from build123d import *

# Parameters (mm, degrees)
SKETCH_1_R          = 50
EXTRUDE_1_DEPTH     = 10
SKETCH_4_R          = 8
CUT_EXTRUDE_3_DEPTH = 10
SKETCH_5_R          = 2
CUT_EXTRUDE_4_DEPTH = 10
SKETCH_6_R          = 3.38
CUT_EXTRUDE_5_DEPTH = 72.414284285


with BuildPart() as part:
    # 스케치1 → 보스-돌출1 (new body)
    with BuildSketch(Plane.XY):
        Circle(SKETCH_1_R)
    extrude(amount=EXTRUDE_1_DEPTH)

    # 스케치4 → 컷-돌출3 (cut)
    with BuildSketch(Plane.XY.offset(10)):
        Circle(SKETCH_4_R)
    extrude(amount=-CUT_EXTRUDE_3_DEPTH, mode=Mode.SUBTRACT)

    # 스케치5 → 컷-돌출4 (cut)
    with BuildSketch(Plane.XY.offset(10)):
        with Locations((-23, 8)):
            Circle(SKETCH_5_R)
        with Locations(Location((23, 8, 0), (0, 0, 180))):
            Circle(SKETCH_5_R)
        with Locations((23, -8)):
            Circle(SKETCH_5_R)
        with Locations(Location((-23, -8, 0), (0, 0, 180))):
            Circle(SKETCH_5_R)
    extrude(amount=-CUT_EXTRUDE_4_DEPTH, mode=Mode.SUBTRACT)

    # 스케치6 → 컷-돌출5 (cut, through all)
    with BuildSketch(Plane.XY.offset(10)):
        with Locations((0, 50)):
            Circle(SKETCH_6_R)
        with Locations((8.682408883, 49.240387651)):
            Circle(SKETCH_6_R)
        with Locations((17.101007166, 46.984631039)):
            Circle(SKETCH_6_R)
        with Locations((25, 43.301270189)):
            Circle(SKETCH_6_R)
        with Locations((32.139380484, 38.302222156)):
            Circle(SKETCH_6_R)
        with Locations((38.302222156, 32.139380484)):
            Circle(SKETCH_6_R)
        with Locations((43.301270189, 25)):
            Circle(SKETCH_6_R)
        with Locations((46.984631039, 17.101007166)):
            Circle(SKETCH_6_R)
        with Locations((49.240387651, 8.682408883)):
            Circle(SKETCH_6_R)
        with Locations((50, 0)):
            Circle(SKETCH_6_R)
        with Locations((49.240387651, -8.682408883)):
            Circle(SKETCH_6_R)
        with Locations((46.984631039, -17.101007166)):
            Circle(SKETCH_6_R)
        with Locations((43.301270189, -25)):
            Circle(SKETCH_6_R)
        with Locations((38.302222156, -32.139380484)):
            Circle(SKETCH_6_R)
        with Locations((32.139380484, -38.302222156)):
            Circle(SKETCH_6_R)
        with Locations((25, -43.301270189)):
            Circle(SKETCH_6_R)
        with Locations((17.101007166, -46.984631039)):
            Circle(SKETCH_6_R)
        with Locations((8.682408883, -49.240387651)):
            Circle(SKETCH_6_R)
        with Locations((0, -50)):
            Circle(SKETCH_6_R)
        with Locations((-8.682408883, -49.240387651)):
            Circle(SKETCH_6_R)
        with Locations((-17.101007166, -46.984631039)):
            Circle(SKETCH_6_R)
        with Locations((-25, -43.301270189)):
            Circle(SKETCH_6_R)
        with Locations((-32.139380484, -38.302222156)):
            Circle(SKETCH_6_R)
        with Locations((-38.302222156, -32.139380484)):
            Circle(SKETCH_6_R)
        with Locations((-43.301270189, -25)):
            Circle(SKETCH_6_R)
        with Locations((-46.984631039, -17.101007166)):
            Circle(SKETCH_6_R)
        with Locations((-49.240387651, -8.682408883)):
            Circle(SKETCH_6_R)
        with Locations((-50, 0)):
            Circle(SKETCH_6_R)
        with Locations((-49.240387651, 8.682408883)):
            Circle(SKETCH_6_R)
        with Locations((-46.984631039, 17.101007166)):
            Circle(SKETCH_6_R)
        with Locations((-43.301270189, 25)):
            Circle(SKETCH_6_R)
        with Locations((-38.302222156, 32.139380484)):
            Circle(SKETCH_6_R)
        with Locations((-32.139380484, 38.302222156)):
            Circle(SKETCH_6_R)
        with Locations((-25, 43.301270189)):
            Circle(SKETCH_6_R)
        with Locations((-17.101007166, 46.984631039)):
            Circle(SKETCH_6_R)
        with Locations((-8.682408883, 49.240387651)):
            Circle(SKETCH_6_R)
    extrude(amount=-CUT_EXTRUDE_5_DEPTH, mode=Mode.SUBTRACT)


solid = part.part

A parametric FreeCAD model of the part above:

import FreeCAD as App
import Part
import Sketcher

V = App.Vector

doc = App.newDocument("Part")
body = doc.addObject("PartDesign::Body", "Body")

# Sketch on XY plane
sketch1 = body.newObject("Sketcher::SketchObject", "Sketch")
sketch1.AttachmentSupport = (doc.getObject("XY_Plane"), [""])
sketch1.MapMode = "FlatFace"
sketch1.addGeometry(Part.Circle(V(0, 0, 0), V(0, 0, 1), 50), False)
sketch1.addConstraint(Sketcher.Constraint("Coincident", 0, 3, -1, 1))
sketch1.addConstraint(Sketcher.Constraint("Diameter", 0, 100.0))
pad1 = body.newObject("PartDesign::Pad", "Pad")
pad1.Profile = sketch1
pad1.Length = 10

# Sketch on XY plane
sketch2 = body.newObject("Sketcher::SketchObject", "Sketch001")
sketch2.AttachmentSupport = (doc.getObject("XY_Plane"), [""])
sketch2.MapMode = "FlatFace"
sketch2.AttachmentOffset = App.Placement(V(0, 0, 10), App.Rotation())
sketch2.addGeometry(Part.Circle(V(0, 0, 0), V(0, 0, 1), 8), False)
sketch2.addConstraint(Sketcher.Constraint("Coincident", 0, 3, -1, 1))
sketch2.addConstraint(Sketcher.Constraint("Diameter", 0, 16.0))
pocket1 = body.newObject("PartDesign::Pocket", "Pocket")
pocket1.Profile = sketch2
pocket1.Length = 10

# Sketch on XY plane
sketch3 = body.newObject("Sketcher::SketchObject", "Sketch002")
sketch3.AttachmentSupport = (doc.getObject("XY_Plane"), [""])
sketch3.MapMode = "FlatFace"
sketch3.AttachmentOffset = App.Placement(V(0, 0, 10), App.Rotation())
sketch3.addGeometry(Part.Circle(V(-23, 8, 0), V(0, 0, 1), 2), False)
sketch3.addGeometry(Part.Circle(V(23, 8, 0), V(0, 0, 1), 2), False)
sketch3.addGeometry(Part.Circle(V(23, -8, 0), V(0, 0, 1), 2), False)
sketch3.addGeometry(Part.Circle(V(-23, -8, 0), V(0, 0, 1), 2), False)
sketch3.addConstraint(Sketcher.Constraint("Equal", 0, 1))
sketch3.addConstraint(Sketcher.Constraint("Equal", 1, 2))
sketch3.addConstraint(Sketcher.Constraint("Equal", 2, 3))
sketch3.addConstraint(Sketcher.Constraint("Symmetric", 0, 3, 2, 3, -1, 1))
sketch3.addConstraint(Sketcher.Constraint("Symmetric", 1, 3, 3, 3, -1, 1))
sketch3.addConstraint(Sketcher.Constraint("Symmetric", 0, 3, 1, 3, -2))
sketch3.addConstraint(Sketcher.Constraint("Diameter", 0, 4.0))
sketch3.addConstraint(Sketcher.Constraint("DistanceX", 0, 3, -1, 1, 23.0))
sketch3.addConstraint(Sketcher.Constraint("DistanceY", -1, 1, 0, 3, 8.0))
pocket2 = body.newObject("PartDesign::Pocket", "Pocket001")
pocket2.Profile = sketch3
pocket2.Length = 10

# Sketch on XY plane
sketch4 = body.newObject("Sketcher::SketchObject", "Sketch003")
sketch4.AttachmentSupport = (doc.getObject("XY_Plane"), [""])
sketch4.MapMode = "FlatFace"
sketch4.AttachmentOffset = App.Placement(V(0, 0, 10), App.Rotation())
sketch4.addGeometry(Part.Circle(V(0, 50, 0), V(0, 0, 1), 3.4), False)
sketch4.addGeometry(Part.Circle(V(8.7, 49.2, 0), V(0, 0, 1), 3.4), False)
sketch4.addGeometry(Part.Circle(V(17.1, 47, 0), V(0, 0, 1), 3.4), False)
sketch4.addGeometry(Part.Circle(V(25, 43.3, 0), V(0, 0, 1), 3.4), False)
sketch4.addGeometry(Part.Circle(V(32.1, 38.3, 0), V(0, 0, 1), 3.4), False)
sketch4.addGeometry(Part.Circle(V(38.3, 32.1, 0), V(0, 0, 1), 3.4), False)
sketch4.addGeometry(Part.Circle(V(43.3, 25, 0), V(0, 0, 1), 3.4), False)
sketch4.addGeometry(Part.Circle(V(47, 17.1, 0), V(0, 0, 1), 3.4), False)
sketch4.addGeometry(Part.Circle(V(49.2, 8.7, 0), V(0, 0, 1), 3.4), False)
sketch4.addGeometry(Part.Circle(V(50, 0, 0), V(0, 0, 1), 3.4), False)
sketch4.addGeometry(Part.Circle(V(49.2, -8.7, 0), V(0, 0, 1), 3.4), False)
sketch4.addGeometry(Part.Circle(V(47, -17.1, 0), V(0, 0, 1), 3.4), False)
sketch4.addGeometry(Part.Circle(V(43.3, -25, 0), V(0, 0, 1), 3.4), False)
sketch4.addGeometry(Part.Circle(V(38.3, -32.1, 0), V(0, 0, 1), 3.4), False)
sketch4.addGeometry(Part.Circle(V(32.1, -38.3, 0), V(0, 0, 1), 3.4), False)
sketch4.addGeometry(Part.Circle(V(25, -43.3, 0), V(0, 0, 1), 3.4), False)
sketch4.addGeometry(Part.Circle(V(17.1, -47, 0), V(0, 0, 1), 3.4), False)
sketch4.addGeometry(Part.Circle(V(8.7, -49.2, 0), V(0, 0, 1), 3.4), False)
sketch4.addGeometry(Part.Circle(V(0, -50, 0), V(0, 0, 1), 3.4), False)
sketch4.addGeometry(Part.Circle(V(-8.7, -49.2, 0), V(0, 0, 1), 3.4), False)
sketch4.addGeometry(Part.Circle(V(-17.1, -47, 0), V(0, 0, 1), 3.4), False)
sketch4.addGeometry(Part.Circle(V(-25, -43.3, 0), V(0, 0, 1), 3.4), False)
sketch4.addGeometry(Part.Circle(V(-32.1, -38.3, 0), V(0, 0, 1), 3.4), False)
sketch4.addGeometry(Part.Circle(V(-38.3, -32.1, 0), V(0, 0, 1), 3.4), False)
sketch4.addGeometry(Part.Circle(V(-43.3, -25, 0), V(0, 0, 1), 3.4), False)
sketch4.addGeometry(Part.Circle(V(-47, -17.1, 0), V(0, 0, 1), 3.4), False)
sketch4.addGeometry(Part.Circle(V(-49.2, -8.7, 0), V(0, 0, 1), 3.4), False)
sketch4.addGeometry(Part.Circle(V(-50, 0, 0), V(0, 0, 1), 3.4), False)
sketch4.addGeometry(Part.Circle(V(-49.2, 8.7, 0), V(0, 0, 1), 3.4), False)
sketch4.addGeometry(Part.Circle(V(-47, 17.1, 0), V(0, 0, 1), 3.4), False)
sketch4.addGeometry(Part.Circle(V(-43.3, 25, 0), V(0, 0, 1), 3.4), False)
sketch4.addGeometry(Part.Circle(V(-38.3, 32.1, 0), V(0, 0, 1), 3.4), False)
sketch4.addGeometry(Part.Circle(V(-32.1, 38.3, 0), V(0, 0, 1), 3.4), False)
sketch4.addGeometry(Part.Circle(V(-25, 43.3, 0), V(0, 0, 1), 3.4), False)
sketch4.addGeometry(Part.Circle(V(-17.1, 47, 0), V(0, 0, 1), 3.4), False)
sketch4.addGeometry(Part.Circle(V(-8.7, 49.2, 0), V(0, 0, 1), 3.4), False)
sketch4.addConstraint(Sketcher.Constraint("Equal", 0, 1))
sketch4.addConstraint(Sketcher.Constraint("Equal", 1, 2))
sketch4.addConstraint(Sketcher.Constraint("Equal", 2, 3))
sketch4.addConstraint(Sketcher.Constraint("Equal", 3, 4))
sketch4.addConstraint(Sketcher.Constraint("Equal", 4, 5))
sketch4.addConstraint(Sketcher.Constraint("Equal", 5, 6))
sketch4.addConstraint(Sketcher.Constraint("Equal", 6, 7))
sketch4.addConstraint(Sketcher.Constraint("Equal", 7, 8))
sketch4.addConstraint(Sketcher.Constraint("Equal", 8, 9))
sketch4.addConstraint(Sketcher.Constraint("Equal", 9, 10))
sketch4.addConstraint(Sketcher.Constraint("Equal", 10, 11))
sketch4.addConstraint(Sketcher.Constraint("Equal", 11, 12))
sketch4.addConstraint(Sketcher.Constraint("Equal", 12, 13))
sketch4.addConstraint(Sketcher.Constraint("Equal", 13, 14))
sketch4.addConstraint(Sketcher.Constraint("Equal", 14, 15))
sketch4.addConstraint(Sketcher.Constraint("Equal", 15, 16))
sketch4.addConstraint(Sketcher.Constraint("Equal", 16, 17))
sketch4.addConstraint(Sketcher.Constraint("Equal", 17, 18))
sketch4.addConstraint(Sketcher.Constraint("Equal", 18, 19))
sketch4.addConstraint(Sketcher.Constraint("Equal", 19, 20))
sketch4.addConstraint(Sketcher.Constraint("Equal", 20, 21))
sketch4.addConstraint(Sketcher.Constraint("Equal", 21, 22))
sketch4.addConstraint(Sketcher.Constraint("Equal", 22, 23))
sketch4.addConstraint(Sketcher.Constraint("Equal", 23, 24))
sketch4.addConstraint(Sketcher.Constraint("Equal", 24, 25))
sketch4.addConstraint(Sketcher.Constraint("Equal", 25, 26))
sketch4.addConstraint(Sketcher.Constraint("Equal", 26, 27))
sketch4.addConstraint(Sketcher.Constraint("Equal", 27, 28))
sketch4.addConstraint(Sketcher.Constraint("Equal", 28, 29))
sketch4.addConstraint(Sketcher.Constraint("Equal", 29, 30))
sketch4.addConstraint(Sketcher.Constraint("Equal", 30, 31))
sketch4.addConstraint(Sketcher.Constraint("Equal", 31, 32))
sketch4.addConstraint(Sketcher.Constraint("Equal", 32, 33))
sketch4.addConstraint(Sketcher.Constraint("Equal", 33, 34))
sketch4.addConstraint(Sketcher.Constraint("Equal", 34, 35))
sketch4.addConstraint(Sketcher.Constraint("Symmetric", 0, 3, 18, 3, -1, 1))
sketch4.addConstraint(Sketcher.Constraint("Symmetric", 1, 3, 19, 3, -1, 1))
sketch4.addConstraint(Sketcher.Constraint("Symmetric", 2, 3, 20, 3, -1, 1))
sketch4.addConstraint(Sketcher.Constraint("Symmetric", 3, 3, 21, 3, -1, 1))
sketch4.addConstraint(Sketcher.Constraint("Symmetric", 4, 3, 22, 3, -1, 1))
sketch4.addConstraint(Sketcher.Constraint("Symmetric", 5, 3, 23, 3, -1, 1))
sketch4.addConstraint(Sketcher.Constraint("Symmetric", 6, 3, 24, 3, -1, 1))
sketch4.addConstraint(Sketcher.Constraint("Symmetric", 7, 3, 25, 3, -1, 1))
sketch4.addConstraint(Sketcher.Constraint("Symmetric", 8, 3, 26, 3, -1, 1))
sketch4.addConstraint(Sketcher.Constraint("Symmetric", 9, 3, 27, 3, -1, 1))
sketch4.addConstraint(Sketcher.Constraint("Symmetric", 10, 3, 28, 3, -1, 1))
sketch4.addConstraint(Sketcher.Constraint("Symmetric", 11, 3, 29, 3, -1, 1))
sketch4.addConstraint(Sketcher.Constraint("Symmetric", 12, 3, 30, 3, -1, 1))
sketch4.addConstraint(Sketcher.Constraint("Symmetric", 13, 3, 31, 3, -1, 1))
sketch4.addConstraint(Sketcher.Constraint("Symmetric", 14, 3, 32, 3, -1, 1))
sketch4.addConstraint(Sketcher.Constraint("Symmetric", 15, 3, 33, 3, -1, 1))
sketch4.addConstraint(Sketcher.Constraint("Symmetric", 16, 3, 34, 3, -1, 1))
sketch4.addConstraint(Sketcher.Constraint("Symmetric", 17, 3, 35, 3, -1, 1))
sketch4.addConstraint(Sketcher.Constraint("Symmetric", 17, 3, 19, 3, -2))
sketch4.addConstraint(Sketcher.Constraint("Symmetric", 16, 3, 20, 3, -2))
sketch4.addConstraint(Sketcher.Constraint("Symmetric", 15, 3, 21, 3, -2))
sketch4.addConstraint(Sketcher.Constraint("Symmetric", 14, 3, 22, 3, -2))
sketch4.addConstraint(Sketcher.Constraint("Symmetric", 13, 3, 23, 3, -2))
sketch4.addConstraint(Sketcher.Constraint("Symmetric", 12, 3, 24, 3, -2))
sketch4.addConstraint(Sketcher.Constraint("Symmetric", 11, 3, 25, 3, -2))
sketch4.addConstraint(Sketcher.Constraint("Symmetric", 10, 3, 26, 3, -2))
sketch4.addConstraint(Sketcher.Constraint("PointOnObject", 0, 3, -2))
sketch4.addConstraint(Sketcher.Constraint("PointOnObject", 9, 3, -1))
sketch4.addConstraint(Sketcher.Constraint("Diameter", 0, 6.76))
sketch4.addConstraint(Sketcher.Constraint("DistanceY", -1, 1, 0, 3, 50.0))
sketch4.addConstraint(Sketcher.Constraint("DistanceX", -1, 1, 3, 3, 25.0))
sketch4.addConstraint(Sketcher.Constraint("DistanceY", -1, 1, 6, 3, 25.0))
sketch4.addConstraint(Sketcher.Constraint("DistanceX", -1, 1, 9, 3, 50.0))
sketch4.addConstraint(Sketcher.Constraint("DistanceX", 1, 3, 2, 3, 8.418598))
sketch4.addConstraint(Sketcher.Constraint("DistanceY", 8, 3, 7, 3, 8.418598))
sketch4.addConstraint(Sketcher.Constraint("DistanceX", -1, 1, 1, 3, 8.682409))
sketch4.addConstraint(Sketcher.Constraint("DistanceY", -1, 1, 2, 3, 46.984631))
sketch4.addConstraint(Sketcher.Constraint("DistanceY", -1, 1, 3, 3, 43.30127))
sketch4.addConstraint(Sketcher.Constraint("DistanceX", -1, 1, 4, 3, 32.13938))
sketch4.addConstraint(Sketcher.Constraint("DistanceY", -1, 1, 5, 3, 32.13938))
sketch4.addConstraint(Sketcher.Constraint("DistanceX", -1, 1, 6, 3, 43.30127))
sketch4.addConstraint(Sketcher.Constraint("DistanceX", -1, 1, 7, 3, 46.984631))
sketch4.addConstraint(Sketcher.Constraint("DistanceY", -1, 1, 8, 3, 8.682409))
sketch4.addConstraint(Sketcher.Constraint("DistanceY", 4, 3, 3, 3, 4.999048))
sketch4.addConstraint(Sketcher.Constraint("DistanceX", 4, 3, 5, 3, 6.162842))
sketch4.addConstraint(Sketcher.Constraint("DistanceY", -1, 1, 1, 3, 49.240388))
sketch4.addConstraint(Sketcher.Constraint("DistanceX", -1, 1, 8, 3, 49.240388))
pocket3 = body.newObject("PartDesign::Pocket", "Pocket002")
pocket3.Profile = sketch4
pocket3.Type = "ThroughAll"

doc.recompute()
